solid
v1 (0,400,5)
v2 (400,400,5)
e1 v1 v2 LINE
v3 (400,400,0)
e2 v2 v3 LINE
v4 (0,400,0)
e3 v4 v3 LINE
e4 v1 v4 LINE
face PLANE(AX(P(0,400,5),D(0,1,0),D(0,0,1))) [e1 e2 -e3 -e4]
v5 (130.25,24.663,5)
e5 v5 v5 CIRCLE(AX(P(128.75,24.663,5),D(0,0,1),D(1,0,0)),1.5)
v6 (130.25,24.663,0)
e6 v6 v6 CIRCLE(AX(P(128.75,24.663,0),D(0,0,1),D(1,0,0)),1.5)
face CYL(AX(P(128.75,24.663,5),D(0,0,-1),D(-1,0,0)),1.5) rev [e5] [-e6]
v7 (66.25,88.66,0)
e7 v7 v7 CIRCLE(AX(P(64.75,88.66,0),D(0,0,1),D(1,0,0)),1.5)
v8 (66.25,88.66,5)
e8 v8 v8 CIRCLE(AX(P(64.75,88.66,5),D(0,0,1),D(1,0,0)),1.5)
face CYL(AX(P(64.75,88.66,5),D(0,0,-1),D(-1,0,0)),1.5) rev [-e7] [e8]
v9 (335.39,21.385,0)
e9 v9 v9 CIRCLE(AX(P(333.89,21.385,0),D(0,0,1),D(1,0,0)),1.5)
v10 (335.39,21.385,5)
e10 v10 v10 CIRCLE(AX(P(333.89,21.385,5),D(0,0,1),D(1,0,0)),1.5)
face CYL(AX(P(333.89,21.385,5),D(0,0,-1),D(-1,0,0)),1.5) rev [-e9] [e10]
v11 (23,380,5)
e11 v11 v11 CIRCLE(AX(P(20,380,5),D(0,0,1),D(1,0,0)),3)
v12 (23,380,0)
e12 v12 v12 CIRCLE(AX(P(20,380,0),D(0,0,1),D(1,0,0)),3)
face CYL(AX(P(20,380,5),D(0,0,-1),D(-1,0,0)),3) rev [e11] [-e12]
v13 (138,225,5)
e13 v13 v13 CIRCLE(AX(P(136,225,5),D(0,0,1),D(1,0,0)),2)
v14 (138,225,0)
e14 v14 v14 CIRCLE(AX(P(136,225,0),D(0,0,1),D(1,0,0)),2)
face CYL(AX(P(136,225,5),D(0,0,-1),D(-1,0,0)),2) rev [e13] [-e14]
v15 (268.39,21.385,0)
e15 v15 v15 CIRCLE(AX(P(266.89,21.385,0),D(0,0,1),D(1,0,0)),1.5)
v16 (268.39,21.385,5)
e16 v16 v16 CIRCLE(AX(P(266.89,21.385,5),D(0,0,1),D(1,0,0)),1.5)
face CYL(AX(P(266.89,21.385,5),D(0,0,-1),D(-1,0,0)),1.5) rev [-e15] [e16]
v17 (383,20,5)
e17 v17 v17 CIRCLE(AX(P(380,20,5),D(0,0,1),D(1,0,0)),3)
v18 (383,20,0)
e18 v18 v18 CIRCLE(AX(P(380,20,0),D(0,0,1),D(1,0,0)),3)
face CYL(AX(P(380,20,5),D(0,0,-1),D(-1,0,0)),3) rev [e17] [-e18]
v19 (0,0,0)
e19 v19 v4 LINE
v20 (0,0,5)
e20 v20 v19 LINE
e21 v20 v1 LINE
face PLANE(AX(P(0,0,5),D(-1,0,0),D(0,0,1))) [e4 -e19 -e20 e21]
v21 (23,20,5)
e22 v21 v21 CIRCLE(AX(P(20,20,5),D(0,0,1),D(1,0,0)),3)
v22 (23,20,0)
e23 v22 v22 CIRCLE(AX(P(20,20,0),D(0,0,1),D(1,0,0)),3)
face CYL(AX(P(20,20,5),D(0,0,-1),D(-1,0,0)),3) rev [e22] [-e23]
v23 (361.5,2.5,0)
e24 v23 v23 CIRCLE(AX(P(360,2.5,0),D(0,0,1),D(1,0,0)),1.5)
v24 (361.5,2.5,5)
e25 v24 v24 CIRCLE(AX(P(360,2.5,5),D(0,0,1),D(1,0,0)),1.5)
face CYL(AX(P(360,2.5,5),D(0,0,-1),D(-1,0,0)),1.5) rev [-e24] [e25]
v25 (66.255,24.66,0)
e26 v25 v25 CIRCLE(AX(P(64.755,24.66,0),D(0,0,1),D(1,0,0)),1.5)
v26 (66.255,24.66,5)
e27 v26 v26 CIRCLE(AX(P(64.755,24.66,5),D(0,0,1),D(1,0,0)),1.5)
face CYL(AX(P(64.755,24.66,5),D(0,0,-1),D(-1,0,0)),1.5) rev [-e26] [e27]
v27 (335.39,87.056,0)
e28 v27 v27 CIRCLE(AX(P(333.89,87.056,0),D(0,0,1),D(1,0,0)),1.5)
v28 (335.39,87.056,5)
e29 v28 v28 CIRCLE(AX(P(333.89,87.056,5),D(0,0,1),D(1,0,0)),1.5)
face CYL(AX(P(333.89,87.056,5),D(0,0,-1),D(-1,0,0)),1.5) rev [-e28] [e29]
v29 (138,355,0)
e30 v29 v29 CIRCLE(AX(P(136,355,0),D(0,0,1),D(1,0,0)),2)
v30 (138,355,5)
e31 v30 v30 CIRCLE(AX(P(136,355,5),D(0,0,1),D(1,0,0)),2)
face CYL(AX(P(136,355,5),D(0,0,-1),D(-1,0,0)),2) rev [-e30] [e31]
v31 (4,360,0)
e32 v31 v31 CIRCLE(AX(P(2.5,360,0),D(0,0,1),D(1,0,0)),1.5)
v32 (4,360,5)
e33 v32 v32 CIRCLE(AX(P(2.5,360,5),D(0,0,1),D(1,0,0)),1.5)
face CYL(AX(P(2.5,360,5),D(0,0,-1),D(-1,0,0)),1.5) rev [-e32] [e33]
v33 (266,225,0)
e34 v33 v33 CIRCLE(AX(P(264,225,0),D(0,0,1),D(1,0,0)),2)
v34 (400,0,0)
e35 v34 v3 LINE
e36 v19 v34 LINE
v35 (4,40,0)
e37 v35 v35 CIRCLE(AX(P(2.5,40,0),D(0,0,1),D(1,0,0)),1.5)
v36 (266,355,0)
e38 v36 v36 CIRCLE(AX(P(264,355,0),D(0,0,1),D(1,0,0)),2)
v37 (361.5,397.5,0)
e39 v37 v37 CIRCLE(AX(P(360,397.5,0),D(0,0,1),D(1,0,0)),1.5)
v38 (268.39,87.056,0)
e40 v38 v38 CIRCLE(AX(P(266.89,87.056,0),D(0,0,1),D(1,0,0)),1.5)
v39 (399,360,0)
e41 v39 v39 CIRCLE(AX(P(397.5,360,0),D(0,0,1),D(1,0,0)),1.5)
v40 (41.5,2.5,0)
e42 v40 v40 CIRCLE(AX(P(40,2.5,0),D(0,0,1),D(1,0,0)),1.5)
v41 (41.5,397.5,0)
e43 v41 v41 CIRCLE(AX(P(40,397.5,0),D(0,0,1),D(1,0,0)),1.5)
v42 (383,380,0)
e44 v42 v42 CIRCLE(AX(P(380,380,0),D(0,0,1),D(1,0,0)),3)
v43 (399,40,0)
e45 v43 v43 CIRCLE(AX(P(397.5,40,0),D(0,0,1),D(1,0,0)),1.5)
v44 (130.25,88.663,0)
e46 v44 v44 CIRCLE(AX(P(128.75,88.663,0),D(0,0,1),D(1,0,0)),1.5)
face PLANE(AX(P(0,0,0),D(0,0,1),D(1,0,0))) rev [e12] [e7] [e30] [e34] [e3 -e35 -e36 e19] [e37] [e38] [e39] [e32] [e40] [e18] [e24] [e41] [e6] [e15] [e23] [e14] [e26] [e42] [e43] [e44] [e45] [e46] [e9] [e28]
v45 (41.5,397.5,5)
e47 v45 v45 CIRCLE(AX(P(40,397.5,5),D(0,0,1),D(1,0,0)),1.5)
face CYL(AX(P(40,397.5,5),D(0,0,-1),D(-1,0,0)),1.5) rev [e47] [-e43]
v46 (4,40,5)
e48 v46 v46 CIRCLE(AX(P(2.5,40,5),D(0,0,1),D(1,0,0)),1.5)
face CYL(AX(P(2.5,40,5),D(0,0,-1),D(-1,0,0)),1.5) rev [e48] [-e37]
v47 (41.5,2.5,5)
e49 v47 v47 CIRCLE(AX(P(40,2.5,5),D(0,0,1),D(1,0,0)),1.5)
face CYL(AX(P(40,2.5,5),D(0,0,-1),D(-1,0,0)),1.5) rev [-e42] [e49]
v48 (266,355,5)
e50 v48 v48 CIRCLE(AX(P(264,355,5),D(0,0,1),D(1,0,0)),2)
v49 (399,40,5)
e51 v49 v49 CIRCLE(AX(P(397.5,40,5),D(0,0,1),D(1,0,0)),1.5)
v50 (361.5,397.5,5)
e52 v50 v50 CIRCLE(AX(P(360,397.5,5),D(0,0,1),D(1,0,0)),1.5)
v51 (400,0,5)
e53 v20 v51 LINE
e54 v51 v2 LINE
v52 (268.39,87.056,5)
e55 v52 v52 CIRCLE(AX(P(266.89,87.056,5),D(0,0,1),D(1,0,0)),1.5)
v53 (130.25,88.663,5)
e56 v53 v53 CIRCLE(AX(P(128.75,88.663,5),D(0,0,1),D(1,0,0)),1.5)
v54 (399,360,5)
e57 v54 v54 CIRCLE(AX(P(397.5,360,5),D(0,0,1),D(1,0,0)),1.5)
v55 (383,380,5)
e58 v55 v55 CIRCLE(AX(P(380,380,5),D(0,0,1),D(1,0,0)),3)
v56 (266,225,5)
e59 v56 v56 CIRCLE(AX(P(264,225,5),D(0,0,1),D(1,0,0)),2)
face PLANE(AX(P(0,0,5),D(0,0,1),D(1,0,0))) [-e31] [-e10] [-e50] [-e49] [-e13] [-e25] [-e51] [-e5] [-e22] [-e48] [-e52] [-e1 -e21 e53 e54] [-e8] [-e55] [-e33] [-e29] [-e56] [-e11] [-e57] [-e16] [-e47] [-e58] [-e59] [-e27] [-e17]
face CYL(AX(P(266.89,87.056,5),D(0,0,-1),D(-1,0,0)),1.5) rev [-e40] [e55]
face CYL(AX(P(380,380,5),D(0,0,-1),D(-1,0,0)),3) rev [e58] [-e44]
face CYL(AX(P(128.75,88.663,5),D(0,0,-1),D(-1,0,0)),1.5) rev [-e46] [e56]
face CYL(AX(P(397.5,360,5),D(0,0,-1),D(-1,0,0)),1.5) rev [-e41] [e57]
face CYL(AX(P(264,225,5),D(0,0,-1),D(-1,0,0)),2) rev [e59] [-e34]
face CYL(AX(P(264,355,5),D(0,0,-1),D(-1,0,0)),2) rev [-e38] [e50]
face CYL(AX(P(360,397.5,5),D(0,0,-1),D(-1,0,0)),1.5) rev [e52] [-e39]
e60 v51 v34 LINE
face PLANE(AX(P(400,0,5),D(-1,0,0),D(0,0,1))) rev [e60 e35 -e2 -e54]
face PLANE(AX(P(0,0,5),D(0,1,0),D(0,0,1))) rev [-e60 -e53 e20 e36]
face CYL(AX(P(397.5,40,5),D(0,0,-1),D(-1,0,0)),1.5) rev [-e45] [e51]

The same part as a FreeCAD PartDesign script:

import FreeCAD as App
import Part
import Sketcher
Q = App.Units.Quantity

doc = App.newDocument("Part")
body = doc.addObject("PartDesign::Body", "Body")

# Sketch on XY plane
sketch1 = body.newObject("Sketcher::SketchObject", "Sketch")
sketch1.AttachmentSupport = (doc.getObject("XY_Plane"), [""])
sketch1.MapMode = "FlatFace"
sketch1.addGeometry(Part.LineSegment(App.Vector(0, 400, 0), App.Vector(0, 0, 0)), False)
sketch1.addGeometry(Part.LineSegment(App.Vector(0, 0, 0), App.Vector(400, 0, 0)), False)
sketch1.addGeometry(Part.LineSegment(App.Vector(400, 0, 0), App.Vector(400, 400, 0)), False)
sketch1.addGeometry(Part.LineSegment(App.Vector(400, 400, 0), App.Vector(0, 400, 0)), False)
sketch1.addGeometry(Part.Circle(App.Vector(20, 20, 0), App.Vector(0, 0, 1), 3), False)
sketch1.addGeometry(Part.Circle(App.Vector(40, 2.5, 0), App.Vector(0, 0, 1), 1.5), False)
sketch1.addGeometry(Part.Circle(App.Vector(2.5, 40, 0), App.Vector(0, 0, 1), 1.5), False)
sketch1.addGeometry(Part.Circle(App.Vector(64.8, 24.7, 0), App.Vector(0, 0, 1), 1.5), False)
sketch1.addGeometry(Part.Circle(App.Vector(64.8, 88.7, 0), App.Vector(0, 0, 1), 1.5), False)
sketch1.addGeometry(Part.Circle(App.Vector(128.8, 24.7, 0), App.Vector(0, 0, 1), 1.5), False)
sketch1.addGeometry(Part.Circle(App.Vector(128.8, 88.7, 0), App.Vector(0, 0, 1), 1.5), False)
sketch1.addGeometry(Part.Circle(App.Vector(266.9, 21.4, 0), App.Vector(0, 0, 1), 1.5), False)
sketch1.addGeometry(Part.Circle(App.Vector(266.9, 87.1, 0), App.Vector(0, 0, 1), 1.5), False)
sketch1.addGeometry(Part.Circle(App.Vector(333.9, 21.4, 0), App.Vector(0, 0, 1), 1.5), False)
sketch1.addGeometry(Part.Circle(App.Vector(360, 2.5, 0), App.Vector(0, 0, 1), 1.5), False)
sketch1.addGeometry(Part.Circle(App.Vector(380, 20, 0), App.Vector(0, 0, 1), 3), False)
sketch1.addGeometry(Part.Circle(App.Vector(397.5, 40, 0), App.Vector(0, 0, 1), 1.5), False)
sketch1.addGeometry(Part.Circle(App.Vector(333.9, 87.1, 0), App.Vector(0, 0, 1), 1.5), False)
sketch1.addGeometry(Part.Circle(App.Vector(136, 225, 0), App.Vector(0, 0, 1), 2), False)
sketch1.addGeometry(Part.Circle(App.Vector(2.5, 360, 0), App.Vector(0, 0, 1), 1.5), False)
sketch1.addGeometry(Part.Circle(App.Vector(20, 380, 0), App.Vector(0, 0, 1), 3), False)
sketch1.addGeometry(Part.Circle(App.Vector(40, 397.5, 0), App.Vector(0, 0, 1), 1.5), False)
sketch1.addGeometry(Part.Circle(App.Vector(136, 355, 0), App.Vector(0, 0, 1), 2), False)
sketch1.addGeometry(Part.Circle(App.Vector(264, 225, 0), App.Vector(0, 0, 1), 2), False)
sketch1.addGeometry(Part.Circle(App.Vector(264, 355, 0), App.Vector(0, 0, 1), 2), False)
sketch1.addGeometry(Part.Circle(App.Vector(397.5, 360, 0), App.Vector(0, 0, 1), 1.5), False)
sketch1.addGeometry(Part.Circle(App.Vector(360, 397.5, 0), App.Vector(0, 0, 1), 1.5), False)
sketch1.addGeometry(Part.Circle(App.Vector(380, 380, 0), App.Vector(0, 0, 1), 3), False)
sketch1.addConstraint(Sketcher.Constraint("Coincident", 0, 2, 1, 1))
sketch1.addConstraint(Sketcher.Constraint("Coincident", 1, 2, 2, 1))
sketch1.addConstraint(Sketcher.Constraint("Coincident", 2, 2, 3, 1))
sketch1.addConstraint(Sketcher.Constraint("Coincident", 3, 2, 0, 1))
sketch1.addConstraint(Sketcher.Constraint("Vertical", 0))
sketch1.addConstraint(Sketcher.Constraint("Horizontal", 1))
sketch1.addConstraint(Sketcher.Constraint("Vertical", 2))
sketch1.addConstraint(Sketcher.Constraint("Horizontal", 3))
sketch1.addConstraint(Sketcher.Constraint("Coincident", 0, 2, -1, 1))
sketch1.addConstraint(Sketcher.Constraint("Equal", 5, 6))
sketch1.addConstraint(Sketcher.Constraint("Equal", 6, 7))
sketch1.addConstraint(Sketcher.Constraint("Equal", 7, 8))
sketch1.addConstraint(Sketcher.Constraint("Equal", 8, 9))
sketch1.addConstraint(Sketcher.Constraint("Equal", 9, 10))
sketch1.addConstraint(Sketcher.Constraint("Equal", 10, 11))
sketch1.addConstraint(Sketcher.Constraint("Equal", 11, 12))
sketch1.addConstraint(Sketcher.Constraint("Equal", 12, 13))
sketch1.addConstraint(Sketcher.Constraint("Equal", 13, 14))
sketch1.addConstraint(Sketcher.Constraint("Equal", 4, 15))
sketch1.addConstraint(Sketcher.Constraint("Equal", 14, 16))
sketch1.addConstraint(Sketcher.Constraint("Equal", 16, 17))
sketch1.addConstraint(Sketcher.Constraint("Equal", 17, 19))
sketch1.addConstraint(Sketcher.Constraint("Equal", 15, 20))
sketch1.addConstraint(Sketcher.Constraint("Equal", 19, 21))
sketch1.addConstraint(Sketcher.Constraint("Equal", 18, 22))
sketch1.addConstraint(Sketcher.Constraint("Equal", 22, 23))
sketch1.addConstraint(Sketcher.Constraint("Equal", 23, 24))
sketch1.addConstraint(Sketcher.Constraint("Equal", 21, 25))
sketch1.addConstraint(Sketcher.Constraint("Equal", 25, 26))
sketch1.addConstraint(Sketcher.Constraint("Equal", 20, 27))
sketch1.addConstraint(Sketcher.Constraint("Horizontal", 11, 3, 13, 3))
sketch1.addConstraint(Sketcher.Constraint("Horizontal", 5, 3, 14, 3))
sketch1.addConstraint(Sketcher.Constraint("Horizontal", 4, 3, 15, 3))
sketch1.addConstraint(Sketcher.Constraint("Horizontal", 6, 3, 16, 3))
sketch1.addConstraint(Sketcher.Constraint("Horizontal", 12, 3, 17, 3))
sketch1.addConstraint(Sketcher.Constraint("Horizontal", 18, 3, 23, 3))
sketch1.addConstraint(Sketcher.Constraint("Horizontal", 22, 3, 24, 3))
sketch1.addConstraint(Sketcher.Constraint("Horizontal", 19, 3, 25, 3))
sketch1.addConstraint(Sketcher.Constraint("Horizontal", 21, 3, 26, 3))
sketch1.addConstraint(Sketcher.Constraint("Horizontal", 20, 3, 27, 3))
sketch1.addConstraint(Sketcher.Constraint("Vertical", 9, 3, 10, 3))
sketch1.addConstraint(Sketcher.Constraint("Vertical", 11, 3, 12, 3))
sketch1.addConstraint(Sketcher.Constraint("Vertical", 13, 3, 17, 3))
sketch1.addConstraint(Sketcher.Constraint("Vertical", 6, 3, 19, 3))
sketch1.addConstraint(Sketcher.Constraint("Vertical", 4, 3, 20, 3))
sketch1.addConstraint(Sketcher.Constraint("Vertical", 5, 3, 21, 3))
sketch1.addConstraint(Sketcher.Constraint("Vertical", 18, 3, 22, 3))
sketch1.addConstraint(Sketcher.Constraint("Vertical", 23, 3, 24, 3))
sketch1.addConstraint(Sketcher.Constraint("Vertical", 16, 3, 25, 3))
sketch1.addConstraint(Sketcher.Constraint("Vertical", 14, 3, 26, 3))
sketch1.addConstraint(Sketcher.Constraint("Vertical", 15, 3, 27, 3))
sketch1.addConstraint(Sketcher.Constraint("Equal", 3, 0))
sketch1.addConstraint(Sketcher.Constraint("Diameter", 4, Q("6 mm")))
sketch1.addConstraint(Sketcher.Constraint("Diameter", 5, Q("3 mm")))
sketch1.addConstraint(Sketcher.Constraint("Diameter", 18, Q("4 mm")))
sketch1.addConstraint(Sketcher.Constraint("DistanceX", 1, 1, 1, 2, Q("400 mm")))
sketch1.addConstraint(Sketcher.Constraint("DistanceX", -1, 1, 4, 3, Q("20 mm")))
sketch1.addConstraint(Sketcher.Constraint("DistanceY", -1, 1, 4, 3, Q("20 mm")))
sketch1.addConstraint(Sketcher.Constraint("DistanceX", -1, 1, 5, 3, Q("40 mm")))
sketch1.addConstraint(Sketcher.Constraint("DistanceY", -1, 1, 6, 3, Q("40 mm")))
sketch1.addConstraint(Sketcher.Constraint("DistanceX", -1, 1, 14, 3, Q("360 mm")))
sketch1.addConstraint(Sketcher.Constraint("DistanceX", -1, 1, 15, 3, Q("380 mm")))
sketch1.addConstraint(Sketcher.Constraint("DistanceX", -1, 1, 18, 3, Q("136 mm")))
sketch1.addConstraint(Sketcher.Constraint("DistanceY", -1, 1, 18, 3, Q("225 mm")))
sketch1.addConstraint(Sketcher.Constraint("DistanceY", -1, 1, 19, 3, Q("360 mm")))
sketch1.addConstraint(Sketcher.Constraint("DistanceY", -1, 1, 20, 3, Q("380 mm")))
sketch1.addConstraint(Sketcher.Constraint("DistanceY", -1, 1, 22, 3, Q("355 mm")))
sketch1.addConstraint(Sketcher.Constraint("DistanceX", -1, 1, 23, 3, Q("264 mm")))
sketch1.addConstraint(Sketcher.Constraint("DistanceY", 7, 3, 8, 3, Q("64 mm")))
sketch1.addConstraint(Sketcher.Constraint("DistanceX", 8, 3, 9, 3, Q("64 mm")))
sketch1.addConstraint(Sketcher.Constraint("DistanceY", 9, 3, 10, 3, Q("64 mm")))
sketch1.addConstraint(Sketcher.Constraint("DistanceX", 11, 3, 13, 3, Q("67 mm")))
sketch1.addConstraint(Sketcher.Constraint("DistanceY", -1, 1, 5, 3, Q("2.5 mm")))
sketch1.addConstraint(Sketcher.Constraint("DistanceX", -1, 1, 6, 3, Q("2.5 mm")))
sketch1.addConstraint(Sketcher.Constraint("DistanceX", -1, 1, 16, 3, Q("397.5 mm")))
sketch1.addConstraint(Sketcher.Constraint("DistanceY", -1, 1, 21, 3, Q("397.5 mm")))
sketch1.addConstraint(Sketcher.Constraint("DistanceY", -1, 1, 7, 3, Q("24.66 mm")))
sketch1.addConstraint(Sketcher.Constraint("DistanceX", -1, 1, 8, 3, Q("64.75 mm")))
sketch1.addConstraint(Sketcher.Constraint("DistanceX", -1, 1, 11, 3, Q("266.89 mm")))
sketch1.addConstraint(Sketcher.Constraint("DistanceX", -1, 1, 7, 3, Q("64.755 mm")))
sketch1.addConstraint(Sketcher.Constraint("DistanceY", -1, 1, 9, 3, Q("24.663 mm")))
sketch1.addConstraint(Sketcher.Constraint("DistanceY", -1, 1, 11, 3, Q("21.385 mm")))
sketch1.addConstraint(Sketcher.Constraint("DistanceY", -1, 1, 12, 3, Q("87.056 mm")))
pad1 = body.newObject("PartDesign::Pad", "Pad")
pad1.Profile = sketch1
pad1.Length = 5

doc.recompute()
